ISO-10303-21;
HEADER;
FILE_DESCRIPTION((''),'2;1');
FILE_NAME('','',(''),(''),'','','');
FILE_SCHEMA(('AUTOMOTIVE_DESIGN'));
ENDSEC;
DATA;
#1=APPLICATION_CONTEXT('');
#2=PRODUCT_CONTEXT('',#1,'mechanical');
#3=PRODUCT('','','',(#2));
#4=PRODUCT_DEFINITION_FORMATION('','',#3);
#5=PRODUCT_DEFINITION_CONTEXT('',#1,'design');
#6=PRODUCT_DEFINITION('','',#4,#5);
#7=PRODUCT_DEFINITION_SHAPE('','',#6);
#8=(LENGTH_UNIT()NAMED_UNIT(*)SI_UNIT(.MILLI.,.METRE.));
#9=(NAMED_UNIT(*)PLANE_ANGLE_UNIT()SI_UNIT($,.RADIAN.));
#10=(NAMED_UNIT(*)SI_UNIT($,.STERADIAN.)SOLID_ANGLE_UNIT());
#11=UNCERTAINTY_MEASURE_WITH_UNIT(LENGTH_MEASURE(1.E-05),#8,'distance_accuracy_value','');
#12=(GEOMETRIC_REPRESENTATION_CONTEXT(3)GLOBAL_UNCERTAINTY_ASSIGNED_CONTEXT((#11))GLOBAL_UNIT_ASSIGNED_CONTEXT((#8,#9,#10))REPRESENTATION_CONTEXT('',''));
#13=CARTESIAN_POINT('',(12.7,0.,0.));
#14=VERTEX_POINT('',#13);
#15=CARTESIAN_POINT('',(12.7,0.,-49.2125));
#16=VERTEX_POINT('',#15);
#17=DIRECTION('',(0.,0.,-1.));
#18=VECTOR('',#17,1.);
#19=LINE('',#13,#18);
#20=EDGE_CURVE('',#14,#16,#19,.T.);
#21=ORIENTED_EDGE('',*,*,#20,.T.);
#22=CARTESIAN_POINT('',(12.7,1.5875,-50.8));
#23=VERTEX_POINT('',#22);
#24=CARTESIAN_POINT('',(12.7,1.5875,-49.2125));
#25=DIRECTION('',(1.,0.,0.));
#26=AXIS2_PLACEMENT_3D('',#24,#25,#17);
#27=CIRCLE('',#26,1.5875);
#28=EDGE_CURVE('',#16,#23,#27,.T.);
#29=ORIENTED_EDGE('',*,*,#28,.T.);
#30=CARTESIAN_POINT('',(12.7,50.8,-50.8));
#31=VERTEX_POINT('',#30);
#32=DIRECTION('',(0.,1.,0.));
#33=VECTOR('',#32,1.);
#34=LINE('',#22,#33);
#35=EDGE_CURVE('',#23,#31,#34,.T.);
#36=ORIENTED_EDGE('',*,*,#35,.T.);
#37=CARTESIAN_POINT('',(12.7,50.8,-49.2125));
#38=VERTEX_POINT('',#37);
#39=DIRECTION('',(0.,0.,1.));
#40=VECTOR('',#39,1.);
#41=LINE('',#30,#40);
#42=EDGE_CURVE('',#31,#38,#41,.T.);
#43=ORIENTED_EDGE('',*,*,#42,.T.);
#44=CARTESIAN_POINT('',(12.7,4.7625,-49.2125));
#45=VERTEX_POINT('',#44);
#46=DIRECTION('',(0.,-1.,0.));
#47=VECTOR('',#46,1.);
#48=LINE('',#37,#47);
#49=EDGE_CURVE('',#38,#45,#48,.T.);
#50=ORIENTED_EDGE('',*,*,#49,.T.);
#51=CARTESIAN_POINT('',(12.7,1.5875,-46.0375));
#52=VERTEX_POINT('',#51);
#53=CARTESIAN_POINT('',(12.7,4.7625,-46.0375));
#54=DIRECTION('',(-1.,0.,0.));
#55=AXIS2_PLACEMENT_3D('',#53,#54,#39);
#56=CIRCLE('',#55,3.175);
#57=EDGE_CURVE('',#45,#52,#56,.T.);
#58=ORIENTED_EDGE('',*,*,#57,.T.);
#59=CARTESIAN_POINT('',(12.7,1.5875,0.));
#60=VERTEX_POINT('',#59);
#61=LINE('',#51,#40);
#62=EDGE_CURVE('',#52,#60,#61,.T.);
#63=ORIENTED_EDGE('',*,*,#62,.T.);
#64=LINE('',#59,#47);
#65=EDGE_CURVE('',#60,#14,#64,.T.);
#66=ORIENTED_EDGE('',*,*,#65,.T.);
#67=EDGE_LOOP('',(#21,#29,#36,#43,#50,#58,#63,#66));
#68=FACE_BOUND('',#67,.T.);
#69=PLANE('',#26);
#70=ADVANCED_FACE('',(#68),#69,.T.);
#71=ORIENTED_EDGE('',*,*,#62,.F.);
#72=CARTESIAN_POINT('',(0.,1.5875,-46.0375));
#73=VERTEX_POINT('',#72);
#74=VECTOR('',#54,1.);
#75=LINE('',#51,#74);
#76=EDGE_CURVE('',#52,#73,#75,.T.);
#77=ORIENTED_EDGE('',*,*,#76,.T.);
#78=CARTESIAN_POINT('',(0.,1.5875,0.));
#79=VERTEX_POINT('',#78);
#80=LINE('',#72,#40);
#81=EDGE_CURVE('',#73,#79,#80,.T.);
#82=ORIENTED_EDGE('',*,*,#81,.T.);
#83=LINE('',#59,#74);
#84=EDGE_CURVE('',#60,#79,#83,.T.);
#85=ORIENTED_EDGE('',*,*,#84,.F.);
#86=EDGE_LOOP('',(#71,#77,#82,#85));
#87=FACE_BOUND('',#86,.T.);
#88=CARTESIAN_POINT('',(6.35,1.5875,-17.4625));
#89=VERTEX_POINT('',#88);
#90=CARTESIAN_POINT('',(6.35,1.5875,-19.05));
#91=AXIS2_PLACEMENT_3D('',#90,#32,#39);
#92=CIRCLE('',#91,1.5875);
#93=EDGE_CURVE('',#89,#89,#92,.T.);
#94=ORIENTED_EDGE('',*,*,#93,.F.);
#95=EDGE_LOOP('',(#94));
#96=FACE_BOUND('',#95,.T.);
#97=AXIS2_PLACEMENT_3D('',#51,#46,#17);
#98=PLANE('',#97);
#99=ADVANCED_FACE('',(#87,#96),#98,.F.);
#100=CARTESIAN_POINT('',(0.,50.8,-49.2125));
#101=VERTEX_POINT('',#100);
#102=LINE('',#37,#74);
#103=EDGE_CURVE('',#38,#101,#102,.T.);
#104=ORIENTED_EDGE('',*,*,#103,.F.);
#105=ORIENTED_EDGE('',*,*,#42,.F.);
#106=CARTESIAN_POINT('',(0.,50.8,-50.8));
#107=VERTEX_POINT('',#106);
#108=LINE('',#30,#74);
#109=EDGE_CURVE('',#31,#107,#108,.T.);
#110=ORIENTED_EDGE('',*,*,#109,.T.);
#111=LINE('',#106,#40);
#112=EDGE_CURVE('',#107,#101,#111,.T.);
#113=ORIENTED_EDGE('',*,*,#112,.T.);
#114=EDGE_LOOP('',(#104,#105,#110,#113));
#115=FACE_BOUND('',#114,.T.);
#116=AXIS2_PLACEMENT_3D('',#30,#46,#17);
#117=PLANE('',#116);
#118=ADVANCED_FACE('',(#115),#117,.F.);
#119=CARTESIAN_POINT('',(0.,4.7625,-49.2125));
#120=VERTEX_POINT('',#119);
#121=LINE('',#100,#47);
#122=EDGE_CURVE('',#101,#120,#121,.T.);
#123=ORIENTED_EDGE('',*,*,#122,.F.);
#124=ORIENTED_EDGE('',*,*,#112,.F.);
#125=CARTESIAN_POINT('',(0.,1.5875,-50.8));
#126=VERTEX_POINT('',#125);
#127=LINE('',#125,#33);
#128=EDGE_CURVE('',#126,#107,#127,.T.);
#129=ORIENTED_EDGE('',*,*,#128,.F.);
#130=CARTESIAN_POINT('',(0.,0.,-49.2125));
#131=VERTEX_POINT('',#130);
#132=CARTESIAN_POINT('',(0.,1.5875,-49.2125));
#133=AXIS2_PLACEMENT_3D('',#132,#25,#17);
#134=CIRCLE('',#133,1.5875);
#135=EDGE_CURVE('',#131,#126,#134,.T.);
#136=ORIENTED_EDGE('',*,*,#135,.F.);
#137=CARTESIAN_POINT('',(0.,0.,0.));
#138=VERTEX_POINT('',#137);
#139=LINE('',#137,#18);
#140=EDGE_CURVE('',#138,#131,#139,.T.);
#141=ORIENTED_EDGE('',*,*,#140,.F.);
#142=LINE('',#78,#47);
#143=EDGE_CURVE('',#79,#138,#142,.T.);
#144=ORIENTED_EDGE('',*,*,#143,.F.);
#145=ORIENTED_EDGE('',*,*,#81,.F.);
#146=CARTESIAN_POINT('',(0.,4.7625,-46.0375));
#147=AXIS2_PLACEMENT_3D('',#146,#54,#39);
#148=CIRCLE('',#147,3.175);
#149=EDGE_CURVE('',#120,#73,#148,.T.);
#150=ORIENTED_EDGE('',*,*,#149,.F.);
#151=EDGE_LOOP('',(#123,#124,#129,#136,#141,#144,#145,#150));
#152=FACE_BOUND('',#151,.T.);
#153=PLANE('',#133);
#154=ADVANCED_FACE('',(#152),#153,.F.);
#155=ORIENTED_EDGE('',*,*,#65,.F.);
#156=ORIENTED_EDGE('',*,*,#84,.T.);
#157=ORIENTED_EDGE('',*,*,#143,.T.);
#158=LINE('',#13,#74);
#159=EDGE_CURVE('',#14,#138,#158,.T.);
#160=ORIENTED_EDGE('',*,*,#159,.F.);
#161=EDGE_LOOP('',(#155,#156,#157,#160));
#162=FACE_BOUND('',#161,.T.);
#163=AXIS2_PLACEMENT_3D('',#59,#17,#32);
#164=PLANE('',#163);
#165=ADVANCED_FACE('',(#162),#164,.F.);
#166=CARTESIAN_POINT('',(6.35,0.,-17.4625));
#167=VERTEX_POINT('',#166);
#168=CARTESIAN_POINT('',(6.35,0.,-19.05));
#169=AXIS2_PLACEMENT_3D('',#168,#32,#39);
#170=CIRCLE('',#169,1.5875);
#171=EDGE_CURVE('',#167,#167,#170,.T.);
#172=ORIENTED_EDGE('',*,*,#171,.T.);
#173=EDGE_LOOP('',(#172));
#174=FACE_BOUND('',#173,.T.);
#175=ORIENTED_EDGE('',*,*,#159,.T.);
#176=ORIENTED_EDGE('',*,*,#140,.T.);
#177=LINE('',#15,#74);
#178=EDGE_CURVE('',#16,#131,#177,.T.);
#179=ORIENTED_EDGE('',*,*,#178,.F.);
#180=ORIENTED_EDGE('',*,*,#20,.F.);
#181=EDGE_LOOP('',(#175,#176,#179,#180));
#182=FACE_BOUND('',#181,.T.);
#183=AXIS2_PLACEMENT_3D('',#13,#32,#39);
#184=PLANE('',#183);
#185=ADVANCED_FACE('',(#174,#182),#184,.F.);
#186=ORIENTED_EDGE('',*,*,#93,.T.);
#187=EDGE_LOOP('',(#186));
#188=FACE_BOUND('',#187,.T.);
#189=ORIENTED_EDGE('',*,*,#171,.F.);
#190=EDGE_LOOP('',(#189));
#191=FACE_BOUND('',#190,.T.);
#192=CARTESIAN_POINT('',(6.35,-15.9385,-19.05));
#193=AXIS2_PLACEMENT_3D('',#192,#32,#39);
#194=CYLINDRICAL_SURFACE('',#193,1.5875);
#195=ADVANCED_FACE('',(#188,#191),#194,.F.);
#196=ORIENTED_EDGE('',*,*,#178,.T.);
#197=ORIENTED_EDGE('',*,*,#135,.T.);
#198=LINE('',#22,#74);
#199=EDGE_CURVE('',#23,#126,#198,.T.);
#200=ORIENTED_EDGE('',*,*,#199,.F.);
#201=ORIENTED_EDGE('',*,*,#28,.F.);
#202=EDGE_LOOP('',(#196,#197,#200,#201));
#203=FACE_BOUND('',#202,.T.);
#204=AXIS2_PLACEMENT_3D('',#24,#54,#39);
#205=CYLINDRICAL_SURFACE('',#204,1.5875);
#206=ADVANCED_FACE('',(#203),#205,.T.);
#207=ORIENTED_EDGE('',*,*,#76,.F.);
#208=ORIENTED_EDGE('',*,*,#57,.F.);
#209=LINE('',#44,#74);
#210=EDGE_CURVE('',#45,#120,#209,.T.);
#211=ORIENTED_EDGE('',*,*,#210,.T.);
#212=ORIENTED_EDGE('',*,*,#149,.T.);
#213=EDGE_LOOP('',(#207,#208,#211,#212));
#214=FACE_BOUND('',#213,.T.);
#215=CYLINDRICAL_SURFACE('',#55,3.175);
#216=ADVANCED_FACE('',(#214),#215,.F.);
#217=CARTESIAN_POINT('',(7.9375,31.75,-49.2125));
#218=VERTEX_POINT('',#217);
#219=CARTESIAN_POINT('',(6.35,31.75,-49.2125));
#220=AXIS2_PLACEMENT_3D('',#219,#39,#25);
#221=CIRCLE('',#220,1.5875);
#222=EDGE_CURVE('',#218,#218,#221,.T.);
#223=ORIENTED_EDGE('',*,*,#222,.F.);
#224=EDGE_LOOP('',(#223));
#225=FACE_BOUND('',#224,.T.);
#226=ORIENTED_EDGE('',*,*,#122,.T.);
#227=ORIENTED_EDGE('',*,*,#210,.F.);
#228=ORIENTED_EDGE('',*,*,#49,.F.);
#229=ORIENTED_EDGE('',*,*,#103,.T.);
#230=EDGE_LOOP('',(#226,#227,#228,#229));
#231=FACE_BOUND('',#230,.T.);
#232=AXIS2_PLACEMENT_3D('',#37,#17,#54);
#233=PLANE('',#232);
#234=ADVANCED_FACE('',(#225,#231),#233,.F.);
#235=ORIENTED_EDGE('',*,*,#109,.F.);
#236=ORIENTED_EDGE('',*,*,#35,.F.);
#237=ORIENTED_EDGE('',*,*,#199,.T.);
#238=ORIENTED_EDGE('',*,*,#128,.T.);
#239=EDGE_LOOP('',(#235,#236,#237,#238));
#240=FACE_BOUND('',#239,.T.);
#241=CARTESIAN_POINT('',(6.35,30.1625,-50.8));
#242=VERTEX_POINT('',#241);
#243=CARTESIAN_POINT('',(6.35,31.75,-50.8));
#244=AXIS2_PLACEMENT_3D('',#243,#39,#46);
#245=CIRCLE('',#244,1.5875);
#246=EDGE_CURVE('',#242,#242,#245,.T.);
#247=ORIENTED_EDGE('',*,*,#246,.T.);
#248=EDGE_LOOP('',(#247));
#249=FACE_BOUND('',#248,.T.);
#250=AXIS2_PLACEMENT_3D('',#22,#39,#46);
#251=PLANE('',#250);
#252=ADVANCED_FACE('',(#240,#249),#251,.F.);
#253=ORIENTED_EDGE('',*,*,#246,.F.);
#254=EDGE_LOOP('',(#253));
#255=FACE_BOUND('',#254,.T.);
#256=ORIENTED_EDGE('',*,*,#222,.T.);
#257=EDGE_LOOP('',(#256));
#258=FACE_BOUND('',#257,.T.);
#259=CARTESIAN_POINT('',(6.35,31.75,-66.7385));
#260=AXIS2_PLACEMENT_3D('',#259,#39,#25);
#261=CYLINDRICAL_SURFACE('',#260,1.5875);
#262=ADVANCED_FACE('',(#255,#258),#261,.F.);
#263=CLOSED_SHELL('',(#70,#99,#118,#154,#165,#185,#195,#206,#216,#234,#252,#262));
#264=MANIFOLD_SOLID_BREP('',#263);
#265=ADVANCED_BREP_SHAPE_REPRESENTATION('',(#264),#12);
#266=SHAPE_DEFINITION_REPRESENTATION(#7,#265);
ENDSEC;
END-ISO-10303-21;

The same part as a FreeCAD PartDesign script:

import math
import FreeCAD as App
import Part
import Sketcher

V = App.Vector
Q = App.Units.Quantity

doc = App.newDocument("Part")
body = doc.addObject("PartDesign::Body", "Body")

sketch1 = body.newObject("Sketcher::SketchObject", "Sketch")
sketch1.AttachmentSupport = (doc.getObject("YZ_Plane"), [""])
sketch1.MapMode = "FlatFace"
sketch1.addGeometry([
    Part.LineSegment(V(0, 0, 0), V(0, -49.2125, 0)),
    Part.ArcOfCircle(Part.Circle(V(1.5875, -49.2125, 0), V(0, 0, 1), 1.5875), math.radians(180), math.radians(270)),
    Part.LineSegment(V(1.5875, -50.8, 0), V(50.8, -50.8, 0)),
    Part.LineSegment(V(50.8, -50.8, 0), V(50.8, -49.2125, 0)),
    Part.LineSegment(V(50.8, -49.2125, 0), V(4.7625, -49.2125, 0)),
    Part.ArcOfCircle(Part.Circle(V(4.7625, -46.0375, 0), V(0, 0, 1), 3.175), math.radians(-180), math.radians(-90)),
    Part.LineSegment(V(1.5875, -46.0375, 0), V(1.5875, 0, 0)),
    Part.LineSegment(V(1.5875, 0, 0), V(0, 0, 0)),
], False)
sketch1.addConstraint([
    Sketcher.Constraint("Tangent", 0, 2, 1, 1),
    Sketcher.Constraint("Tangent", 1, 2, 2, 1),
    Sketcher.Constraint("Coincident", 2, 2, 3, 1),
    Sketcher.Constraint("Coincident", 3, 2, 4, 1),
    Sketcher.Constraint("Tangent", 4, 2, 5, 2),
    Sketcher.Constraint("Tangent", 5, 1, 6, 1),
    Sketcher.Constraint("Coincident", 6, 2, 7, 1),
    Sketcher.Constraint("Coincident", 7, 2, 0, 1),
    Sketcher.Constraint("Vertical", 0),
    Sketcher.Constraint("Horizontal", 2),
    Sketcher.Constraint("Vertical", 3),
    Sketcher.Constraint("Horizontal", 4),
    Sketcher.Constraint("Vertical", 6),
    Sketcher.Constraint("Horizontal", 7),
    Sketcher.Constraint("Coincident", 7, 2, -1, 1),
    Sketcher.Constraint("Horizontal", 0, 2, 3, 2),
    Sketcher.Constraint("Vertical", 1, 2, 5, 1),
    Sketcher.Constraint("Equal", 2, 0),
    Sketcher.Constraint("DistanceY", 1, 2, -1, 1, Q("2 in")),
    Sketcher.Constraint("Radius", 1, Q("0.0625 in")),
    Sketcher.Constraint("Radius", 5, Q("0.125 in")),
])
pad1 = body.newObject("PartDesign::Pad", "Pad")
pad1.Profile = sketch1
pad1.Length = Q("0.5 in")

sketch2 = body.newObject("Sketcher::SketchObject", "Sketch001")
sketch2.AttachmentSupport = (doc.getObject("XY_Plane"), [""])
sketch2.MapMode = "FlatFace"
sketch2.AttachmentOffset = App.Placement(V(0, 0, -1.9375 * 25.4), App.Rotation())
sketch2.addGeometry(Part.Circle(V(6.35, 31.75, 0), V(0, 0, 1), 1.5875), False)
sketch2.addConstraint([
    Sketcher.Constraint("Diameter", 0, Q("0.125 in")),
    Sketcher.Constraint("DistanceX", -1, 1, 0, 3, Q("0.25 in")),
    Sketcher.Constraint("DistanceY", -1, 1, 0, 3, Q("1.25 in")),
])
pocket1 = body.newObject("PartDesign::Pocket", "Pocket")
pocket1.Profile = sketch2
pocket1.Length = Q("0.69 in")

sketch3 = body.newObject("Sketcher::SketchObject", "Sketch002")
sketch3.AttachmentSupport = (doc.getObject("XZ_Plane"), [""])
sketch3.MapMode = "FlatFace"
sketch3.AttachmentOffset = App.Placement(V(0, 0, -0.0625 * 25.4), App.Rotation())
sketch3.addGeometry(Part.Circle(V(6.35, -19.05, 0), V(0, 0, 1), 1.5875), False)
sketch3.addConstraint([
    Sketcher.Constraint("Diameter", 0, Q("0.125 in")),
    Sketcher.Constraint("DistanceX", -1, 1, 0, 3, Q("0.25 in")),
    Sketcher.Constraint("DistanceY", 0, 3, -1, 1, Q("0.75 in")),
])
pocket2 = body.newObject("PartDesign::Pocket", "Pocket001")
pocket2.Profile = sketch3
pocket2.Length = Q("0.69 in")
pocket2.Reversed = True

doc.recompute()
